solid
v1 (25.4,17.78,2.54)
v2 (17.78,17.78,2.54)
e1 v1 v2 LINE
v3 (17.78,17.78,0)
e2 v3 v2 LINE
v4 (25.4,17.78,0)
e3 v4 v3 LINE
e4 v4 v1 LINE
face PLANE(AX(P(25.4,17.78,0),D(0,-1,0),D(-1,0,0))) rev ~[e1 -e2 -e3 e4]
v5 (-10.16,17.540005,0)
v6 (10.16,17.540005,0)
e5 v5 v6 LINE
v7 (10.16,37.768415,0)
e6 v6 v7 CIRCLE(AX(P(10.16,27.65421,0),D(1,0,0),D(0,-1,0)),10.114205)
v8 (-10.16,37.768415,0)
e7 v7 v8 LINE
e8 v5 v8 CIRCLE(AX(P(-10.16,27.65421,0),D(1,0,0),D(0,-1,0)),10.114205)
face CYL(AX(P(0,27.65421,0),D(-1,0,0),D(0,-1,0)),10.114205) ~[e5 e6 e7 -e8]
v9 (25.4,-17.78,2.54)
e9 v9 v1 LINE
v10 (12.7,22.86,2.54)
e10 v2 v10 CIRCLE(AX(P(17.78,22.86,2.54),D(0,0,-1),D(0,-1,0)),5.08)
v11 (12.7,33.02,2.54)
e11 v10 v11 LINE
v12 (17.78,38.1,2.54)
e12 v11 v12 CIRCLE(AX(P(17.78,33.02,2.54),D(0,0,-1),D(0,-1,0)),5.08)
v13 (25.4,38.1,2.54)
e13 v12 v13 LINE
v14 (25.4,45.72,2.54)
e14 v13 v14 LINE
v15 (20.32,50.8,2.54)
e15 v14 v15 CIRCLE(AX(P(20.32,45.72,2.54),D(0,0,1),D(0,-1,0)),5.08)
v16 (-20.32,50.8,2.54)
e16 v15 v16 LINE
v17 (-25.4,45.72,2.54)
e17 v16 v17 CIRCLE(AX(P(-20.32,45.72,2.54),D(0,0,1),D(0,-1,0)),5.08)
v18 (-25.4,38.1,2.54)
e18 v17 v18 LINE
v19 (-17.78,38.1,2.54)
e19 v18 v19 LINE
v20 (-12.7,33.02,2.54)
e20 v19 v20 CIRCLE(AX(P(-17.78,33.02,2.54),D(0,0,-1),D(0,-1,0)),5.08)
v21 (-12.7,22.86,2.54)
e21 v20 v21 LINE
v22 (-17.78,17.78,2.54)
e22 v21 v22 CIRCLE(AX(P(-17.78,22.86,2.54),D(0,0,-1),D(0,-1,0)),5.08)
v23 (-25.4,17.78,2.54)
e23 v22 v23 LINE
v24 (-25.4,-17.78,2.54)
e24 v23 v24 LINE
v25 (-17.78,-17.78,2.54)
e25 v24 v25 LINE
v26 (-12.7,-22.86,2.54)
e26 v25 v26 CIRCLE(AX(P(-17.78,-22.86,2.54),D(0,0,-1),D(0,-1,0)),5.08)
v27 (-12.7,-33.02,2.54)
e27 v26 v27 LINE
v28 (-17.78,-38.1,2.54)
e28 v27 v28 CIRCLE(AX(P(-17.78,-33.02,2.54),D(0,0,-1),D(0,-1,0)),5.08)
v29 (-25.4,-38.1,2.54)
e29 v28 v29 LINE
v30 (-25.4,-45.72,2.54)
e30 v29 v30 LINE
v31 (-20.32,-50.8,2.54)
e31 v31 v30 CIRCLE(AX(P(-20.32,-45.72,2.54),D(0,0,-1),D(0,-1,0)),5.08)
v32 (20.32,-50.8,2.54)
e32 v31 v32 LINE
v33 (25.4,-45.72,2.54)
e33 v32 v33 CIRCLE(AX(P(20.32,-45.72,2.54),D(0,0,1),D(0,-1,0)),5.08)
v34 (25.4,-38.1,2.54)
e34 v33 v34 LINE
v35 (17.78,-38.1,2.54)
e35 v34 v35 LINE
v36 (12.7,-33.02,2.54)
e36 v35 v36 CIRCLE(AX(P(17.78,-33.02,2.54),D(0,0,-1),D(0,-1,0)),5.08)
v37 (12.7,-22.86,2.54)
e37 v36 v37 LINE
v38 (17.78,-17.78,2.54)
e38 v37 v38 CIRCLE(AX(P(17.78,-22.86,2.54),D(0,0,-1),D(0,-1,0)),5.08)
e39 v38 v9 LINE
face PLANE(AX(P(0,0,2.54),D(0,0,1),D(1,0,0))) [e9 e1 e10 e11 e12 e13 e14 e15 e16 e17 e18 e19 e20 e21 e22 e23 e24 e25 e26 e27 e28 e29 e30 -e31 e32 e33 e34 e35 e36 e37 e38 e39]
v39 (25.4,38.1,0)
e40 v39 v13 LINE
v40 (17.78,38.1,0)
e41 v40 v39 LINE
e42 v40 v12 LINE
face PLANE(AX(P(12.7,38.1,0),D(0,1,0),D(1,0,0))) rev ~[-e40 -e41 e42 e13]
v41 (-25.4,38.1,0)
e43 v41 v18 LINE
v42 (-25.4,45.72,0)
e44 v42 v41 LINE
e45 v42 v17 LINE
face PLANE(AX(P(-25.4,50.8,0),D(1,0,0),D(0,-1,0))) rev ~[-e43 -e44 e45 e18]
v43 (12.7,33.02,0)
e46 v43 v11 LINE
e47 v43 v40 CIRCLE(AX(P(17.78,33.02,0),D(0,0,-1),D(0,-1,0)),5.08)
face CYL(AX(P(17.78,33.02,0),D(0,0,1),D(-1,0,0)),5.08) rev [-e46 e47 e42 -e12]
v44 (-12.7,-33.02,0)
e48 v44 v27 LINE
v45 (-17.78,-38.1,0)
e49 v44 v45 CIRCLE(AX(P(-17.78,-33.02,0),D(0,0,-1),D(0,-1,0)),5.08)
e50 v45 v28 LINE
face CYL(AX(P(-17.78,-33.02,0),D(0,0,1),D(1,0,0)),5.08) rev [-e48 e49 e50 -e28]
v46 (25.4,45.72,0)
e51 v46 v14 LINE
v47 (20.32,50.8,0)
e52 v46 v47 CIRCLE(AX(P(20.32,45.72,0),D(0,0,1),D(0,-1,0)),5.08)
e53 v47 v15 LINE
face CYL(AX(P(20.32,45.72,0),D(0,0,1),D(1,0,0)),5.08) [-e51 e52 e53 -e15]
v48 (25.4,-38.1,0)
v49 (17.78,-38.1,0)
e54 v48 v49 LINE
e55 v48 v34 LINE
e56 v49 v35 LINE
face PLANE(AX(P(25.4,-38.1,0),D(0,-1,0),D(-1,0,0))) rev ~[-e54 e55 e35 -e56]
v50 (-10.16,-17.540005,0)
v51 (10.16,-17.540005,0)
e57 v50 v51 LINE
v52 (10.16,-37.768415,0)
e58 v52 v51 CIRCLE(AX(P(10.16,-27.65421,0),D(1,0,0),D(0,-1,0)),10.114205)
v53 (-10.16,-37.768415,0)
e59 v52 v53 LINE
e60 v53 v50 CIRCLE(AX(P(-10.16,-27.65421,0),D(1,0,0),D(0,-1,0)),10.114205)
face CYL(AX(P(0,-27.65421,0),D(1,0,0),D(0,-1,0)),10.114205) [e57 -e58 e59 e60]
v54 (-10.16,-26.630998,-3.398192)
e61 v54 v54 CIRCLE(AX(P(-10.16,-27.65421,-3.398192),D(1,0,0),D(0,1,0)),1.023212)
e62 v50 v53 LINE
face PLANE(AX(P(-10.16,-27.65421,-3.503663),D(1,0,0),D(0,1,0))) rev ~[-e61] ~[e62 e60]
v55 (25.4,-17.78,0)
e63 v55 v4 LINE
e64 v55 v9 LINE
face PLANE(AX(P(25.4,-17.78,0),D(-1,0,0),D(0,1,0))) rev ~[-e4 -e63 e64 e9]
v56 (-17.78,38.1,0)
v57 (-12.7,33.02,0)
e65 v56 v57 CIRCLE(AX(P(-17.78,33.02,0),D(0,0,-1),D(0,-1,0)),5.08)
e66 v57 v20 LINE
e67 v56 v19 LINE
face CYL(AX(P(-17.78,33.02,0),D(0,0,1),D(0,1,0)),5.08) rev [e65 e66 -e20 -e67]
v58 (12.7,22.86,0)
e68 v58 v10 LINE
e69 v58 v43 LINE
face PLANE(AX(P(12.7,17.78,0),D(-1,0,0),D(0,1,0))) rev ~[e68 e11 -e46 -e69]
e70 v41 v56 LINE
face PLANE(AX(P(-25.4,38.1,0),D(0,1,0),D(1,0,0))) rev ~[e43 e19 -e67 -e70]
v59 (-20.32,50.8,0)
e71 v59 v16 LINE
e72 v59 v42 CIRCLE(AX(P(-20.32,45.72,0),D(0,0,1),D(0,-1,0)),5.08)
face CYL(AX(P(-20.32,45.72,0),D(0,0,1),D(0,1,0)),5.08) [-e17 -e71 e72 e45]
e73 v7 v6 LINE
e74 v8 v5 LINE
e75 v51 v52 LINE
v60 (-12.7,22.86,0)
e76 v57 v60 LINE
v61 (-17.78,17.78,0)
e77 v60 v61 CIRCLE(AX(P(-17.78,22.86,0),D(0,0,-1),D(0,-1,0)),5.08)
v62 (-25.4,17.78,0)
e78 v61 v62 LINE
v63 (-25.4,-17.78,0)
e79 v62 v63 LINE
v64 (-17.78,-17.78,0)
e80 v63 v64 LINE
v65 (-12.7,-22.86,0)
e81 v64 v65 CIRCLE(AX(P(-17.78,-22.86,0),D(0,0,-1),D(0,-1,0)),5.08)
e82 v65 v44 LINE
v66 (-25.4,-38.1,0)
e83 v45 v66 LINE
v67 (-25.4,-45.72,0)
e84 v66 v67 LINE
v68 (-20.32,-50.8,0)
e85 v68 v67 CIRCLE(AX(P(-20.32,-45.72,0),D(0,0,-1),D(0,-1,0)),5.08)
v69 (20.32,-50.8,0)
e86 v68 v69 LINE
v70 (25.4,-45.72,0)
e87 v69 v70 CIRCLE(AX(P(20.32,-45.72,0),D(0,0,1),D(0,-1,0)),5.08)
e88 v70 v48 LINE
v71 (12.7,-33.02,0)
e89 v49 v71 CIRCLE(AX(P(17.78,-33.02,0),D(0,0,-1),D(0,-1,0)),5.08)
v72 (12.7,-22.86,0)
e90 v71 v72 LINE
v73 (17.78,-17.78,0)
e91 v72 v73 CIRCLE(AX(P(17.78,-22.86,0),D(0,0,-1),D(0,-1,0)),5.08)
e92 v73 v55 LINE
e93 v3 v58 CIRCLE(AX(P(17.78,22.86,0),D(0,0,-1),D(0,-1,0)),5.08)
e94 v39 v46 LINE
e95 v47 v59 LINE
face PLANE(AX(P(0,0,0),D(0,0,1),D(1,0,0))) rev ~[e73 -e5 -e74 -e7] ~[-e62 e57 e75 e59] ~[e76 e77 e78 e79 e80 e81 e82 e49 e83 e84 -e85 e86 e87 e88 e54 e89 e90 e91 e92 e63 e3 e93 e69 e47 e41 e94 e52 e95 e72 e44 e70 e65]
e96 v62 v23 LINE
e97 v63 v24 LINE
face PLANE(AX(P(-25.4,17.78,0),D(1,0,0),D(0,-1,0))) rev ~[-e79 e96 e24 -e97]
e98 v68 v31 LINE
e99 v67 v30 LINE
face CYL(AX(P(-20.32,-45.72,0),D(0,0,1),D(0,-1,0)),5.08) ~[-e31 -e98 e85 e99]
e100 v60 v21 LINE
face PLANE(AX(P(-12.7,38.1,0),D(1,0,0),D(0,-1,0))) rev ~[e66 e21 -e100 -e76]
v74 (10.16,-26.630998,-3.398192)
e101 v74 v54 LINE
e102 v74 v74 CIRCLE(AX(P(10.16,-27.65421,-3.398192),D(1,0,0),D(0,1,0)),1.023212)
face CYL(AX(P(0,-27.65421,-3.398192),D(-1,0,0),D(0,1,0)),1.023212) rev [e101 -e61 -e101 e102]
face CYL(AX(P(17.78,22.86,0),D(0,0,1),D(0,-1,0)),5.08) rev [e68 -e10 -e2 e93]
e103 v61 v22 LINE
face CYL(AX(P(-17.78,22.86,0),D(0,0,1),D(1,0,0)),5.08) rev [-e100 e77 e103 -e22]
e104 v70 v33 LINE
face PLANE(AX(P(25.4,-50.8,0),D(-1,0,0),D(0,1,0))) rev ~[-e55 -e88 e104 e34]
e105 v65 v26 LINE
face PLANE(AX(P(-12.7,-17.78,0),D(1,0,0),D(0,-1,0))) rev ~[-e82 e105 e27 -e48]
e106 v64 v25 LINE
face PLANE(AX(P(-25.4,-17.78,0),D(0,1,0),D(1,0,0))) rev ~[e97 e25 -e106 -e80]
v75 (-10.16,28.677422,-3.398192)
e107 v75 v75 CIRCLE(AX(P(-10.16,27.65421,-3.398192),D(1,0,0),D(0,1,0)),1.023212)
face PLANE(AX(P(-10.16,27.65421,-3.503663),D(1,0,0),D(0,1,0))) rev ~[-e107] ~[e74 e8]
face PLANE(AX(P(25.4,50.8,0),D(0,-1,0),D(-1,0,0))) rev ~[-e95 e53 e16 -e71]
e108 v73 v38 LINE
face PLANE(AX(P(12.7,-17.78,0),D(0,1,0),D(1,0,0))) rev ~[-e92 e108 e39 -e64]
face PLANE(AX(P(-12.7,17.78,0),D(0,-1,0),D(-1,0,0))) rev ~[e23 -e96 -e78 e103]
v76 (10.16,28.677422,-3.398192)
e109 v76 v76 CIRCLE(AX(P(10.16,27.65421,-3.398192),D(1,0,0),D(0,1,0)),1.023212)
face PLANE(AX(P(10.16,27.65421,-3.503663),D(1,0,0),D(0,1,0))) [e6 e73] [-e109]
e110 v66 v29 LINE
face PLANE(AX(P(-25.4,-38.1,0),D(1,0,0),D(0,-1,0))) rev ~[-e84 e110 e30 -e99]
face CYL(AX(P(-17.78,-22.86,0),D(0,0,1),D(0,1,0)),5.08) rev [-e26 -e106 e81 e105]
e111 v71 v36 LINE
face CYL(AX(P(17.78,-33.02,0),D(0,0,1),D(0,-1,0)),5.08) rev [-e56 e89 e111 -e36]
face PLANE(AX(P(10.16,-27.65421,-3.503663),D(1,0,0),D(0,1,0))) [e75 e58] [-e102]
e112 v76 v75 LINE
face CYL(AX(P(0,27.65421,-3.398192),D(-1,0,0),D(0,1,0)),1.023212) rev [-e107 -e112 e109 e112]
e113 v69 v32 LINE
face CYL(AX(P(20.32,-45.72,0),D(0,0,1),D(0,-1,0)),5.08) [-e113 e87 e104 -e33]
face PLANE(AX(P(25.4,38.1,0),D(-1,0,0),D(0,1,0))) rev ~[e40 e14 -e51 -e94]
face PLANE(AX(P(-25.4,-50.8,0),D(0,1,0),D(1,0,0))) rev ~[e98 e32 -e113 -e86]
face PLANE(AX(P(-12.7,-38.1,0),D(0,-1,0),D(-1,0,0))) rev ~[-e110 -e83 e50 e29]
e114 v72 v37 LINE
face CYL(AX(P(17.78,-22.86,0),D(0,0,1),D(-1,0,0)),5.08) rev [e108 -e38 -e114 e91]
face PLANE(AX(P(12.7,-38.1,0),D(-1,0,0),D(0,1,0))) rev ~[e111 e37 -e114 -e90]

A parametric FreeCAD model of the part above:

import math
import FreeCAD as App
import Part
import Sketcher
Q = App.Units.Quantity


def edges_at(feature, points):
    """Names of the edges that pass closest to the given points."""
    edges = feature.Shape.Edges
    near = lambda p: min(range(len(edges)), key=lambda i: edges[i].distToShape(Part.Vertex(*p))[0])
    return sorted({f"Edge{near(p) + 1}" for p in points})

doc = App.newDocument("Part")
body = doc.addObject("PartDesign::Body", "Body")

# Sketch on XY plane
sketch1 = doc.addObject("Sketcher::SketchObject", "Sketch")
body.addObject(sketch1)
sketch1.AttachmentSupport = (doc.XY_Plane, [""])
sketch1.MapMode = "FlatFace"
sketch1.addGeometry(Part.LineSegment(App.Vector(-25.4, -50.8, 0), App.Vector(25.4, -50.8, 0)), False)
sketch1.addGeometry(Part.LineSegment(App.Vector(25.4, -50.8, 0), App.Vector(25.4, -38.1, 0)), False)
sketch1.addGeometry(Part.LineSegment(App.Vector(25.4, -38.1, 0), App.Vector(12.7, -38.1, 0)), False)
sketch1.addGeometry(Part.LineSegment(App.Vector(12.7, -38.1, 0), App.Vector(12.7, -17.78, 0)), False)
sketch1.addGeometry(Part.LineSegment(App.Vector(12.7, -17.78, 0), App.Vector(25.4, -17.78, 0)), False)
sketch1.addGeometry(Part.LineSegment(App.Vector(25.4, -17.78, 0), App.Vector(25.4, 17.78, 0)), False)
sketch1.addGeometry(Part.LineSegment(App.Vector(25.4, 17.78, 0), App.Vector(12.7, 17.78, 0)), False)
sketch1.addGeometry(Part.LineSegment(App.Vector(12.7, 17.78, 0), App.Vector(12.7, 38.1, 0)), False)
sketch1.addGeometry(Part.LineSegment(App.Vector(12.7, 38.1, 0), App.Vector(25.4, 38.1, 0)), False)
sketch1.addGeometry(Part.LineSegment(App.Vector(25.4, 38.1, 0), App.Vector(25.4, 50.8, 0)), False)
sketch1.addGeometry(Part.LineSegment(App.Vector(25.4, 50.8, 0), App.Vector(-25.4, 50.8, 0)), False)
sketch1.addGeometry(Part.LineSegment(App.Vector(-25.4, 50.8, 0), App.Vector(-25.4, 38.1, 0)), False)
sketch1.addGeometry(Part.LineSegment(App.Vector(-25.4, 38.1, 0), App.Vector(-12.7, 38.1, 0)), False)
sketch1.addGeometry(Part.LineSegment(App.Vector(-12.7, 38.1, 0), App.Vector(-12.7, 17.78, 0)), False)
sketch1.addGeometry(Part.LineSegment(App.Vector(-12.7, 17.78, 0), App.Vector(-25.4, 17.78, 0)), False)
sketch1.addGeometry(Part.LineSegment(App.Vector(-25.4, 17.78, 0), App.Vector(-25.4, -17.78, 0)), False)
sketch1.addGeometry(Part.LineSegment(App.Vector(-25.4, -17.78, 0), App.Vector(-12.7, -17.78, 0)), False)
sketch1.addGeometry(Part.LineSegment(App.Vector(-12.7, -17.78, 0), App.Vector(-12.7, -38.1, 0)), False)
sketch1.addGeometry(Part.LineSegment(App.Vector(-12.7, -38.1, 0), App.Vector(-25.4, -38.1, 0)), False)
sketch1.addGeometry(Part.LineSegment(App.Vector(-25.4, -38.1, 0), App.Vector(-25.4, -50.8, 0)), False)
sketch1.addConstraint(Sketcher.Constraint("Coincident", 0, 2, 1, 1))
sketch1.addConstraint(Sketcher.Constraint("Coincident", 1, 2, 2, 1))
sketch1.addConstraint(Sketcher.Constraint("Coincident", 2, 2, 3, 1))
sketch1.addConstraint(Sketcher.Constraint("Coincident", 3, 2, 4, 1))
sketch1.addConstraint(Sketcher.Constraint("Coincident", 4, 2, 5, 1))
sketch1.addConstraint(Sketcher.Constraint("Coincident", 5, 2, 6, 1))
sketch1.addConstraint(Sketcher.Constraint("Coincident", 6, 2, 7, 1))
sketch1.addConstraint(Sketcher.Constraint("Coincident", 7, 2, 8, 1))
sketch1.addConstraint(Sketcher.Constraint("Coincident", 8, 2, 9, 1))
sketch1.addConstraint(Sketcher.Constraint("Coincident", 9, 2, 10, 1))
sketch1.addConstraint(Sketcher.Constraint("Coincident", 10, 2, 11, 1))
sketch1.addConstraint(Sketcher.Constraint("Coincident", 11, 2, 12, 1))
sketch1.addConstraint(Sketcher.Constraint("Coincident", 12, 2, 13, 1))
sketch1.addConstraint(Sketcher.Constraint("Coincident", 13, 2, 14, 1))
sketch1.addConstraint(Sketcher.Constraint("Coincident", 14, 2, 15, 1))
sketch1.addConstraint(Sketcher.Constraint("Coincident", 15, 2, 16, 1))
sketch1.addConstraint(Sketcher.Constraint("Coincident", 16, 2, 17, 1))
sketch1.addConstraint(Sketcher.Constraint("Coincident", 17, 2, 18, 1))
sketch1.addConstraint(Sketcher.Constraint("Coincident", 18, 2, 19, 1))
sketch1.addConstraint(Sketcher.Constraint("Coincident", 19, 2, 0, 1))
sketch1.addConstraint(Sketcher.Constraint("Horizontal", 0))
sketch1.addConstraint(Sketcher.Constraint("Vertical", 1))
sketch1.addConstraint(Sketcher.Constraint("Horizontal", 2))
sketch1.addConstraint(Sketcher.Constraint("Vertical", 3))
sketch1.addConstraint(Sketcher.Constraint("Horizontal", 4))
sketch1.addConstraint(Sketcher.Constraint("Vertical", 5))
sketch1.addConstraint(Sketcher.Constraint("Horizontal", 6))
sketch1.addConstraint(Sketcher.Constraint("Vertical", 7))
sketch1.addConstraint(Sketcher.Constraint("Horizontal", 8))
sketch1.addConstraint(Sketcher.Constraint("Vertical", 9))
sketch1.addConstraint(Sketcher.Constraint("Horizontal", 10))
sketch1.addConstraint(Sketcher.Constraint("Vertical", 11))
sketch1.addConstraint(Sketcher.Constraint("Horizontal", 12))
sketch1.addConstraint(Sketcher.Constraint("Vertical", 13))
sketch1.addConstraint(Sketcher.Constraint("Horizontal", 14))
sketch1.addConstraint(Sketcher.Constraint("Vertical", 15))
sketch1.addConstraint(Sketcher.Constraint("Horizontal", 16))
sketch1.addConstraint(Sketcher.Constraint("Vertical", 17))
sketch1.addConstraint(Sketcher.Constraint("Horizontal", 18))
sketch1.addConstraint(Sketcher.Constraint("Vertical", 19))
sketch1.addConstraint(Sketcher.Constraint("Symmetric", 0, 2, 10, 2, -1, 1))
sketch1.addConstraint(Sketcher.Constraint("Symmetric", 2, 2, 12, 2, -1, 1))
sketch1.addConstraint(Sketcher.Constraint("Symmetric", 4, 2, 14, 2, -1, 1))
sketch1.addConstraint(Sketcher.Constraint("Symmetric", 6, 2, 16, 2, -1, 1))
sketch1.addConstraint(Sketcher.Constraint("Symmetric", 8, 2, 18, 2, -1, 1))
sketch1.addConstraint(Sketcher.Constraint("Symmetric", 8, 2, 11, 2, -2))
sketch1.addConstraint(Sketcher.Constraint("Symmetric", 6, 2, 13, 2, -2))
sketch1.addConstraint(Sketcher.Constraint("Vertical", 1, 2, 4, 2))
sketch1.addConstraint(Sketcher.Constraint("Equal", 18, 1))
sketch1.addConstraint(Sketcher.Constraint("DistanceX", 0, 1, 0, 2, Q("2 in")))
sketch1.addConstraint(Sketcher.Constraint("DistanceX", 2, 2, 2, 1, Q("0.5 in")))
sketch1.addConstraint(Sketcher.Constraint("DistanceY", 3, 1, 3, 2, Q("0.8 in")))
sketch1.addConstraint(Sketcher.Constraint("DistanceY", 5, 1, 5, 2, Q("1.4 in")))
pad1 = doc.addObject("PartDesign::Pad", "Pad")
body.addObject(pad1)
pad1.Profile = sketch1
pad1.Length = Q("0.1 in")
doc.recompute()

fillet = doc.addObject("PartDesign::Fillet", "Fillet")
body.addObject(fillet)
fillet.Base = (pad1, edges_at(pad1, [
    (25.4, 50.8, 1.27),
    (-25.4, 50.8, 1.27),
    (25.4, -50.8, 1.27),
    (-25.4, -50.8, 1.27),
    (-12.7, -17.78, 1.27),
    (-12.7, -38.1, 1.27),
    (-12.7, 17.78, 1.27),
    (-12.7, 38.1, 1.27),
    (12.7, 38.1, 1.27),
    (12.7, 17.78, 1.27),
    (12.7, -17.78, 1.27),
    (12.7, -38.1, 1.27),
]))
fillet.Radius = Q("0.2 in")

# Sketch on YZ plane
sketch2 = doc.addObject("Sketcher::SketchObject", "Sketch001")
body.addObject(sketch2)
sketch2.AttachmentSupport = (doc.YZ_Plane, [""])
sketch2.MapMode = "FlatFace"
sketch2.addGeometry(Part.LineSegment(App.Vector(37.768415, 0, 0), App.Vector(17.540005, 0, 0)), False)
sketch2.addGeometry(Part.ArcOfCircle(Part.Circle(App.Vector(27.65421, 0, 0), App.Vector(0, 0, 1), 10.114205), math.radians(180), math.radians(360)), False)
sketch2.addGeometry(Part.Circle(App.Vector(27.65421, -3.398192, 0), App.Vector(0, 0, 1), 1.023212), False)
sketch2.addGeometry(Part.ArcOfCircle(Part.Circle(App.Vector(-27.65421, 0, 0), App.Vector(0, 0, 1), 10.114205), math.radians(180), math.radians(360)), False)
sketch2.addGeometry(Part.LineSegment(App.Vector(-17.540005, 0, 0), App.Vector(-37.768415, 0, 0)), False)
sketch2.addGeometry(Part.Circle(App.Vector(-27.65421, -3.398192, 0), App.Vector(0, 0, 1), 1.023212), False)
sketch2.addConstraint(Sketcher.Constraint("Coincident", 0, 1, 1, 2))
sketch2.addConstraint(Sketcher.Constraint("Coincident", 1, 1, 0, 2))
sketch2.addConstraint(Sketcher.Constraint("Coincident", 3, 1, 4, 2))
sketch2.addConstraint(Sketcher.Constraint("Coincident", 4, 1, 3, 2))
sketch2.addConstraint(Sketcher.Constraint("Horizontal", 0))
sketch2.addConstraint(Sketcher.Constraint("Horizontal", 4))
sketch2.addConstraint(Sketcher.Constraint("Equal", 1, 3))
sketch2.addConstraint(Sketcher.Constraint("Equal", 2, 5))
sketch2.addConstraint(Sketcher.Constraint("Symmetric", 1, 3, 3, 3, -1, 1))
sketch2.addConstraint(Sketcher.Constraint("Symmetric", 2, 3, 5, 3, -2))
sketch2.addConstraint(Sketcher.Constraint("PointOnObject", 1, 3, -1))
sketch2.addConstraint(Sketcher.Constraint("PointOnObject", 0, 1, -1))
sketch2.addConstraint(Sketcher.Constraint("PointOnObject", 3, 1, -1))
sketch2.addConstraint(Sketcher.Constraint("Vertical", 1, 3, 2, 3))
sketch2.addConstraint(Sketcher.Constraint("Diameter", 2, 2.046424))
sketch2.addConstraint(Sketcher.Constraint("Radius", 1, 10.114205))
sketch2.addConstraint(Sketcher.Constraint("DistanceX", 3, 3, 1, 1, Q("1.7792998 in")))
sketch2.addConstraint(Sketcher.Constraint("DistanceY", 2, 3, -1, 1, 3.398192))
pad2 = doc.addObject("PartDesign::Pad", "Pad001")
body.addObject(pad2)
pad2.Profile = sketch2
pad2.Length = Q("0.8 in")
pad2.Midplane = True

doc.recompute()
